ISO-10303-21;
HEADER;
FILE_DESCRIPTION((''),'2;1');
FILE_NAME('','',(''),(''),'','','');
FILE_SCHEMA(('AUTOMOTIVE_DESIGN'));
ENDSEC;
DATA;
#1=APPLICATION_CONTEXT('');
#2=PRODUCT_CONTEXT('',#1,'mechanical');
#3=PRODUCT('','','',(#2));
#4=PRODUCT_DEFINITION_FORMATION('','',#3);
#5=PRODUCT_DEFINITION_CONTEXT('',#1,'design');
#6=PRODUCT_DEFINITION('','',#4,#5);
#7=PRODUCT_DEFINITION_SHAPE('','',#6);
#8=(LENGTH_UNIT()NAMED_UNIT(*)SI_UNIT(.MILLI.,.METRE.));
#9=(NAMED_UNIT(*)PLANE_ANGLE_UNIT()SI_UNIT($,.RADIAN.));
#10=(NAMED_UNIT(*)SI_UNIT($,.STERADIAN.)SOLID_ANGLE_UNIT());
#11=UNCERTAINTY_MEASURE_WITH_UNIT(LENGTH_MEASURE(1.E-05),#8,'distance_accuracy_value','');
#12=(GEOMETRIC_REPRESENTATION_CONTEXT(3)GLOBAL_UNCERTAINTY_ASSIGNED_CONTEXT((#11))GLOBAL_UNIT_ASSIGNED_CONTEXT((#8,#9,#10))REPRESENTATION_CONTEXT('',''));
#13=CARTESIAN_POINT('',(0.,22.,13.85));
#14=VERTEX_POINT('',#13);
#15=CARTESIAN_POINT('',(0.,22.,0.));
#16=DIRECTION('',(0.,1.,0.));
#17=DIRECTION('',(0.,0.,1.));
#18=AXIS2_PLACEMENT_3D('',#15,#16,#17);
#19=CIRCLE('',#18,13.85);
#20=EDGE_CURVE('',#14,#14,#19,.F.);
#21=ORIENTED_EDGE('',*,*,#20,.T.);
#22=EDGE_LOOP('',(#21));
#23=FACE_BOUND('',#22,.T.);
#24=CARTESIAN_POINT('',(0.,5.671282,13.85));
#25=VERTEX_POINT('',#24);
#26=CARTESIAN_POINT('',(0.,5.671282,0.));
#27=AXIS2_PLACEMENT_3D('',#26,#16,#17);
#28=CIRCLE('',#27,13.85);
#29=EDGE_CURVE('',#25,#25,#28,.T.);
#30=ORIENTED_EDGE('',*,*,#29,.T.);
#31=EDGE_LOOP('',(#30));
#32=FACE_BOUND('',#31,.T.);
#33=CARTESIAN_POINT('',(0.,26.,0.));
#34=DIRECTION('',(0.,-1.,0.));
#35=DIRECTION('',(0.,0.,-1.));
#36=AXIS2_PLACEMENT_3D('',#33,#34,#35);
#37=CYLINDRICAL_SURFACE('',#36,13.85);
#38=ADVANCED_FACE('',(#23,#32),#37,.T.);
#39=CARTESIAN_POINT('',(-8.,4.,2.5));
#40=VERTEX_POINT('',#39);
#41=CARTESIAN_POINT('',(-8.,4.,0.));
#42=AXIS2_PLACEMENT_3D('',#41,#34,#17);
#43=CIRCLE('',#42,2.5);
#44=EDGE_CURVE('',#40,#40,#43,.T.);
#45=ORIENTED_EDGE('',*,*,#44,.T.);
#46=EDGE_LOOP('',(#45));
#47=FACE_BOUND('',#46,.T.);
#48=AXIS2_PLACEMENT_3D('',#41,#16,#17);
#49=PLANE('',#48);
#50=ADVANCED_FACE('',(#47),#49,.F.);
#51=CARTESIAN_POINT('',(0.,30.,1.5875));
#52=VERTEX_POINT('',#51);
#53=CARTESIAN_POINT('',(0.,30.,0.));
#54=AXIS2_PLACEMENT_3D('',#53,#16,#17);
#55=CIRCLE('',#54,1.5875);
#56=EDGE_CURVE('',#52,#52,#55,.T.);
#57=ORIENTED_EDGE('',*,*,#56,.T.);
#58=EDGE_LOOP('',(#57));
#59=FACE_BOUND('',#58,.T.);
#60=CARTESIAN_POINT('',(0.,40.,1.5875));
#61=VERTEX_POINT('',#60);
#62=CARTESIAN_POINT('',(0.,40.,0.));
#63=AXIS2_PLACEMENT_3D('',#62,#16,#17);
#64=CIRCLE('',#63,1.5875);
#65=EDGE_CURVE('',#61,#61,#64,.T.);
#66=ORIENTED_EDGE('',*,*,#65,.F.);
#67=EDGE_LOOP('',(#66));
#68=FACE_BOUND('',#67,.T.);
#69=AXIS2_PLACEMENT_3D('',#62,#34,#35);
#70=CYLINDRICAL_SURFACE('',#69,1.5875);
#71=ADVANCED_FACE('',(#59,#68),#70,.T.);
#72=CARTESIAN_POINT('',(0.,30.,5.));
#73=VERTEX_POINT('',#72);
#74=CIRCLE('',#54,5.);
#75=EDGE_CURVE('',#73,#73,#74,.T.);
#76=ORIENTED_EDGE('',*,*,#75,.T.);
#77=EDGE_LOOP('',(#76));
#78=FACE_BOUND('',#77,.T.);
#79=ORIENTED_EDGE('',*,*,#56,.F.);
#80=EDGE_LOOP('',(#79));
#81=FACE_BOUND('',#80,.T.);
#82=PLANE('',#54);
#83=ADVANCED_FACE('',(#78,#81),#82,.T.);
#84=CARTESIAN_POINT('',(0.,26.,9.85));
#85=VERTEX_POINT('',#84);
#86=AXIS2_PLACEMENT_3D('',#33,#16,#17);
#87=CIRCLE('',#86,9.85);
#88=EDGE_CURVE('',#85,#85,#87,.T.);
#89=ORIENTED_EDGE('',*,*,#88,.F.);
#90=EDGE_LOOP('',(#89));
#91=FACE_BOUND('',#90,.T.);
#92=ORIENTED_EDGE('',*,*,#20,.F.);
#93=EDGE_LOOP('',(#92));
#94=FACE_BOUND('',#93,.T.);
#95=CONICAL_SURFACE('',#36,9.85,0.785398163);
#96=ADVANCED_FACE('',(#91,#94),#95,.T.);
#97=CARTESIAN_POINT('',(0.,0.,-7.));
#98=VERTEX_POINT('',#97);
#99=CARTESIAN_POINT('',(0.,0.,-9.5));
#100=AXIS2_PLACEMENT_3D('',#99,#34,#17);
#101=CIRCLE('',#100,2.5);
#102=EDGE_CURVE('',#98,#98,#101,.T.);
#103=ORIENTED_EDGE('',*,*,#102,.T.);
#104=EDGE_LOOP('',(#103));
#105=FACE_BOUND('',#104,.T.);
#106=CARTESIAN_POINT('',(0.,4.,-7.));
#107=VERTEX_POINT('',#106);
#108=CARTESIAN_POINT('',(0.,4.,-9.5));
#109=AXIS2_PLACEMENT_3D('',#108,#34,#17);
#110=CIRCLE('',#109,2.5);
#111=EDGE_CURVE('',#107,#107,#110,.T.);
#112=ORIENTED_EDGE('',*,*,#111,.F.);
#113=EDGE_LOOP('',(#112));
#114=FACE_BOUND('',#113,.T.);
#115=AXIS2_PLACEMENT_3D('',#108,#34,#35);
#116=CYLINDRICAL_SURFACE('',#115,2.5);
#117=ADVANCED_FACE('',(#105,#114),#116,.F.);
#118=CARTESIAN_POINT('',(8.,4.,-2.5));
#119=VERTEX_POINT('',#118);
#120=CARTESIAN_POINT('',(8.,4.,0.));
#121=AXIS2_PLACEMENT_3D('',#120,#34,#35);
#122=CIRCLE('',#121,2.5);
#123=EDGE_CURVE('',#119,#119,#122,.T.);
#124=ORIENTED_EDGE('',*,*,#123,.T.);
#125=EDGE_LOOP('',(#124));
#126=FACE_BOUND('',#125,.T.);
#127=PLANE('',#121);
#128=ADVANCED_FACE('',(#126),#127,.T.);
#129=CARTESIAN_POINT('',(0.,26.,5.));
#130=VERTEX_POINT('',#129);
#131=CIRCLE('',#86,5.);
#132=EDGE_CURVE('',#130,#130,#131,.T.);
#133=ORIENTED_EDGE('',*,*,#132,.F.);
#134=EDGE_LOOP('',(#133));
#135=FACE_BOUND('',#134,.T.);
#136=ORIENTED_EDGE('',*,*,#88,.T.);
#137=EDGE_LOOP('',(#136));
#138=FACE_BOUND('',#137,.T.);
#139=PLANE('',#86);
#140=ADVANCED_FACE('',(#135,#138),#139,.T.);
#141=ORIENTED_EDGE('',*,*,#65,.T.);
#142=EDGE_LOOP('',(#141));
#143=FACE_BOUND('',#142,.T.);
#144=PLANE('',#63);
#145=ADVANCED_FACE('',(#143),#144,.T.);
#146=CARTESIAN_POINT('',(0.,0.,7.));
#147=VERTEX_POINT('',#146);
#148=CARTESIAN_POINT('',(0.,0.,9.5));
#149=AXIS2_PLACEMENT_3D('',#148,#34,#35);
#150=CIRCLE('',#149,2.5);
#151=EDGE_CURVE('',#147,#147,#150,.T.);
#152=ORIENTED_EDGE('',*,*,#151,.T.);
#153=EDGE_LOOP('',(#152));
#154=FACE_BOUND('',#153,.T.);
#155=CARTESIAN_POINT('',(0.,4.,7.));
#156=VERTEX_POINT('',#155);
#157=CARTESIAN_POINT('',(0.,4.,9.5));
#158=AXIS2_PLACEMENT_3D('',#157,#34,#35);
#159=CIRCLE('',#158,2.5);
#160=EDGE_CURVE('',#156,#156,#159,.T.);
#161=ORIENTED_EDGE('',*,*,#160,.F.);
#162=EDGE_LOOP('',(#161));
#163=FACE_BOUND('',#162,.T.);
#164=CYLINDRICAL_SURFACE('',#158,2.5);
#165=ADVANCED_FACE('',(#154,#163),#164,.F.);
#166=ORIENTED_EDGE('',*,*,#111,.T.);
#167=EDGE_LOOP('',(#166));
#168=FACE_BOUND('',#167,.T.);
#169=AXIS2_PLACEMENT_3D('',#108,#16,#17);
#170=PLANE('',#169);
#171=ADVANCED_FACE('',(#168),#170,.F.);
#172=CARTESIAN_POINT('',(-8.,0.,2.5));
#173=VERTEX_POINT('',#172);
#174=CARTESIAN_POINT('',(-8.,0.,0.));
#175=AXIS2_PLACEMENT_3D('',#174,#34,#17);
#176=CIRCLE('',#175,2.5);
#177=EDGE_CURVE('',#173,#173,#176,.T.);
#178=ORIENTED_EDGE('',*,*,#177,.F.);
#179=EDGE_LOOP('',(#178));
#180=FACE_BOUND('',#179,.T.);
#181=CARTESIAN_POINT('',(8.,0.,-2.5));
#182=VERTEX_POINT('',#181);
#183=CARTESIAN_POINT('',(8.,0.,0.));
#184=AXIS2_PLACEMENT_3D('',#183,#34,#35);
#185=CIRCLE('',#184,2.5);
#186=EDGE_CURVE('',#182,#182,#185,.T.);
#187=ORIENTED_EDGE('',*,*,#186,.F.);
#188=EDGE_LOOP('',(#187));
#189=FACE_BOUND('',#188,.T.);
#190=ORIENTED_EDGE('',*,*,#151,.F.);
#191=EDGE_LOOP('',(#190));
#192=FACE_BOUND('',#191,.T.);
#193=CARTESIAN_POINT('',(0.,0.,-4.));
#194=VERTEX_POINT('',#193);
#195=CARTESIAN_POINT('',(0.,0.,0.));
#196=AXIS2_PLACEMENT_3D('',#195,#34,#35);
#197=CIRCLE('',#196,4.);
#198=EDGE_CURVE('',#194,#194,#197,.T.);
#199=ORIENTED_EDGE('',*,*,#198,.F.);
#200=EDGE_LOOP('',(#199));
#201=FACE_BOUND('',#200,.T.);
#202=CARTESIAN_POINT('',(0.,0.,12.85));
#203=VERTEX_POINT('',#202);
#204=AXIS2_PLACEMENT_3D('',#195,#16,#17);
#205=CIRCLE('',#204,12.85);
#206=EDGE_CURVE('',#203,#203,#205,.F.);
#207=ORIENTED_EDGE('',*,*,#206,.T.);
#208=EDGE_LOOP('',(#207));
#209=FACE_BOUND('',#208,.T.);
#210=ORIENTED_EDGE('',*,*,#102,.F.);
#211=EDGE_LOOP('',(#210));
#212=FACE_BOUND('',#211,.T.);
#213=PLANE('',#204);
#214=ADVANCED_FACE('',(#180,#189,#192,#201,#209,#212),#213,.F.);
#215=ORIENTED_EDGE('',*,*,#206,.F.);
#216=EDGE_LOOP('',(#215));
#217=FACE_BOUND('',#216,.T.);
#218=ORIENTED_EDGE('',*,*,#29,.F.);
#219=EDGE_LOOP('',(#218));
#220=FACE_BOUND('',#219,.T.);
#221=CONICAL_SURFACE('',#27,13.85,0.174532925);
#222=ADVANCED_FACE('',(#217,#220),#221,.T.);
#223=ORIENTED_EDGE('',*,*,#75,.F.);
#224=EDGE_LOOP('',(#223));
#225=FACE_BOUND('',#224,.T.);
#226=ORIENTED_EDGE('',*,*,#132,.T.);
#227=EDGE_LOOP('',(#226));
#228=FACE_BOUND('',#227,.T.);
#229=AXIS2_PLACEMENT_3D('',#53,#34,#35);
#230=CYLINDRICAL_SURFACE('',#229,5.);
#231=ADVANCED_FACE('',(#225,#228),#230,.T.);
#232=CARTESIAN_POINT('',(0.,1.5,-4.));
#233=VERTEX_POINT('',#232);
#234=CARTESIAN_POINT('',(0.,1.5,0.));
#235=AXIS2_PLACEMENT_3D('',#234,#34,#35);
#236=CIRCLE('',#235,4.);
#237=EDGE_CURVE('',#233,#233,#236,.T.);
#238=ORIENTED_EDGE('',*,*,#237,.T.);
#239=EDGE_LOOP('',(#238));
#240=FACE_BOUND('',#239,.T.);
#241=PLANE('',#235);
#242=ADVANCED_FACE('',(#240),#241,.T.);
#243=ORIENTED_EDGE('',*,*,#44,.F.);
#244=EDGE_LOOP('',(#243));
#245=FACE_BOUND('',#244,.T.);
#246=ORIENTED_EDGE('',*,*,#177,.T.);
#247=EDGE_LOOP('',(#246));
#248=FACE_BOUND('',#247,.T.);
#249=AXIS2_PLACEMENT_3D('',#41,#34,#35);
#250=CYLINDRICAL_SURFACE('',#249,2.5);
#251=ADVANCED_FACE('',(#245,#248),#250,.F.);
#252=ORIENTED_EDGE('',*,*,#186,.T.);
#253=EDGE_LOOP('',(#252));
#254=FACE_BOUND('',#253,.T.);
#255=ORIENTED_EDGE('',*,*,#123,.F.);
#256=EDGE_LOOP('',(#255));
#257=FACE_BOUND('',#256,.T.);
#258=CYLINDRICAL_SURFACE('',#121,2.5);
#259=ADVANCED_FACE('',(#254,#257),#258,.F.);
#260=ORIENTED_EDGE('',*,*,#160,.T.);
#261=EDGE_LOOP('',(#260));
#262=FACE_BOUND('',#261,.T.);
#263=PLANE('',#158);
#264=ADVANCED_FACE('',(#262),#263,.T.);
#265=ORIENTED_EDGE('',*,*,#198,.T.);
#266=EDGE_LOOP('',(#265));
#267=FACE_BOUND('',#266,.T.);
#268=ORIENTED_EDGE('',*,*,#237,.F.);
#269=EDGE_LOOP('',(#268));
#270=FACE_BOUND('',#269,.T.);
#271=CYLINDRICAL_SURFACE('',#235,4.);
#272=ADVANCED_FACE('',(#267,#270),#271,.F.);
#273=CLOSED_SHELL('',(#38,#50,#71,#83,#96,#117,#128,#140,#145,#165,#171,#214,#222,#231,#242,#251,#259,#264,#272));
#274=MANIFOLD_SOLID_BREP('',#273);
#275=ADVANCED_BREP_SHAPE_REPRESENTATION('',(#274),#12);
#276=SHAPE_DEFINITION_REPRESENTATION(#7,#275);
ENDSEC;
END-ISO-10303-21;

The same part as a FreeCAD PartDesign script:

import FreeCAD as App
import Part
import Sketcher
Q = App.Units.Quantity


def edges_at(feature, points):
    """Names of the edges that pass closest to the given points."""
    edges = feature.Shape.Edges
    near = lambda p: min(range(len(edges)), key=lambda i: edges[i].distToShape(Part.Vertex(*p))[0])
    return sorted({f"Edge{near(p) + 1}" for p in points})

doc = App.newDocument("Part")
body = doc.addObject("PartDesign::Body", "Body")

# Sketch on XZ plane
sketch1 = doc.addObject("Sketcher::SketchObject", "Sketch")
body.addObject(sketch1)
sketch1.AttachmentSupport = (doc.XZ_Plane, [""])
sketch1.MapMode = "FlatFace"
sketch1.addGeometry(Part.Circle(App.Vector(0, 0, 0), App.Vector(0, 0, 1), 13.85), False)
sketch1.addConstraint(Sketcher.Constraint("Coincident", 0, 3, -1, 1))
sketch1.addConstraint(Sketcher.Constraint("Diameter", 0, Q("27.7 mm")))
pad1 = doc.addObject("PartDesign::Pad", "Pad")
body.addObject(pad1)
pad1.Profile = sketch1
pad1.Length = 26
pad1.Reversed = True
doc.recompute()

chamfer = doc.addObject("PartDesign::Chamfer", "Chamfer")
body.addObject(chamfer)
chamfer.Base = (pad1, edges_at(pad1, [(-13.85, 0, 0)]))
chamfer.ChamferType = "Two distances"
chamfer.Size = 1
chamfer.Size2 = 5.671282
chamfer.FlipDirection = True
doc.recompute()

chamfer2 = doc.addObject("PartDesign::Chamfer", "Chamfer001")
body.addObject(chamfer2)
chamfer2.Base = (chamfer, edges_at(chamfer, [(-13.85, 26, 0)]))
chamfer2.Size = 4

# Sketch on XZ plane
sketch2 = doc.addObject("Sketcher::SketchObject", "Sketch001")
body.addObject(sketch2)
sketch2.AttachmentSupport = (doc.XZ_Plane, [""])
sketch2.MapMode = "FlatFace"
sketch2.AttachmentOffset = App.Placement(App.Vector(0, 0, -26), App.Rotation())
sketch2.addGeometry(Part.Circle(App.Vector(0, 0, 0), App.Vector(0, 0, 1), 5), False)
sketch2.addConstraint(Sketcher.Constraint("Coincident", 0, 3, -1, 1))
sketch2.addConstraint(Sketcher.Constraint("Diameter", 0, Q("10 mm")))
pad2 = doc.addObject("PartDesign::Pad", "Pad001")
body.addObject(pad2)
pad2.Profile = sketch2
pad2.Length = 4
pad2.Reversed = True

# Sketch on XZ plane
sketch3 = doc.addObject("Sketcher::SketchObject", "Sketch002")
body.addObject(sketch3)
sketch3.AttachmentSupport = (doc.XZ_Plane, [""])
sketch3.MapMode = "FlatFace"
sketch3.AttachmentOffset = App.Placement(App.Vector(0, 0, -30), App.Rotation())
sketch3.addGeometry(Part.Circle(App.Vector(0, 0, 0), App.Vector(0, 0, 1), 1.5875), False)
sketch3.addConstraint(Sketcher.Constraint("Coincident", 0, 3, -1, 1))
sketch3.addConstraint(Sketcher.Constraint("Diameter", 0, Q("3.175 mm")))
pad3 = doc.addObject("PartDesign::Pad", "Pad002")
body.addObject(pad3)
pad3.Profile = sketch3
pad3.Length = 10
pad3.Reversed = True

# Sketch on XZ plane
sketch4 = doc.addObject("Sketcher::SketchObject", "Sketch003")
body.addObject(sketch4)
sketch4.AttachmentSupport = (doc.XZ_Plane, [""])
sketch4.MapMode = "FlatFace"
sketch4.addGeometry(Part.Circle(App.Vector(8, 0, 0), App.Vector(0, 0, 1), 2.5), False)
sketch4.addGeometry(Part.Circle(App.Vector(0, 9.5, 0), App.Vector(0, 0, 1), 2.5), False)
sketch4.addGeometry(Part.Circle(App.Vector(0, -9.5, 0), App.Vector(0, 0, 1), 2.5), False)
sketch4.addGeometry(Part.Circle(App.Vector(-8, 0, 0), App.Vector(0, 0, 1), 2.5), False)
sketch4.addConstraint(Sketcher.Constraint("Equal", 0, 1))
sketch4.addConstraint(Sketcher.Constraint("Equal", 1, 2))
sketch4.addConstraint(Sketcher.Constraint("Equal", 2, 3))
sketch4.addConstraint(Sketcher.Constraint("Symmetric", 1, 3, 2, 3, -1, 1))
sketch4.addConstraint(Sketcher.Constraint("Symmetric", 0, 3, 3, 3, -1, 1))
sketch4.addConstraint(Sketcher.Constraint("PointOnObject", 0, 3, -1))
sketch4.addConstraint(Sketcher.Constraint("PointOnObject", 1, 3, -2))
sketch4.addConstraint(Sketcher.Constraint("Diameter", 0, Q("5 mm")))
sketch4.addConstraint(Sketcher.Constraint("DistanceX", -1, 1, 0, 3, Q("8 mm")))
sketch4.addConstraint(Sketcher.Constraint("DistanceY", 2, 3, 1, 3, Q("19 mm")))
pocket1 = doc.addObject("PartDesign::Pocket", "Pocket")
body.addObject(pocket1)
pocket1.Profile = sketch4
pocket1.Length = 4

# Sketch on XZ plane
sketch5 = doc.addObject("Sketcher::SketchObject", "Sketch004")
body.addObject(sketch5)
sketch5.AttachmentSupport = (doc.XZ_Plane, [""])
sketch5.MapMode = "FlatFace"
sketch5.addGeometry(Part.Circle(App.Vector(0, 0, 0), App.Vector(0, 0, 1), 4), False)
sketch5.addConstraint(Sketcher.Constraint("Coincident", 0, 3, -1, 1))
sketch5.addConstraint(Sketcher.Constraint("Diameter", 0, Q("8 mm")))
pocket2 = doc.addObject("PartDesign::Pocket", "Pocket001")
body.addObject(pocket2)
pocket2.Profile = sketch5
pocket2.Length = 1.5

doc.recompute()
